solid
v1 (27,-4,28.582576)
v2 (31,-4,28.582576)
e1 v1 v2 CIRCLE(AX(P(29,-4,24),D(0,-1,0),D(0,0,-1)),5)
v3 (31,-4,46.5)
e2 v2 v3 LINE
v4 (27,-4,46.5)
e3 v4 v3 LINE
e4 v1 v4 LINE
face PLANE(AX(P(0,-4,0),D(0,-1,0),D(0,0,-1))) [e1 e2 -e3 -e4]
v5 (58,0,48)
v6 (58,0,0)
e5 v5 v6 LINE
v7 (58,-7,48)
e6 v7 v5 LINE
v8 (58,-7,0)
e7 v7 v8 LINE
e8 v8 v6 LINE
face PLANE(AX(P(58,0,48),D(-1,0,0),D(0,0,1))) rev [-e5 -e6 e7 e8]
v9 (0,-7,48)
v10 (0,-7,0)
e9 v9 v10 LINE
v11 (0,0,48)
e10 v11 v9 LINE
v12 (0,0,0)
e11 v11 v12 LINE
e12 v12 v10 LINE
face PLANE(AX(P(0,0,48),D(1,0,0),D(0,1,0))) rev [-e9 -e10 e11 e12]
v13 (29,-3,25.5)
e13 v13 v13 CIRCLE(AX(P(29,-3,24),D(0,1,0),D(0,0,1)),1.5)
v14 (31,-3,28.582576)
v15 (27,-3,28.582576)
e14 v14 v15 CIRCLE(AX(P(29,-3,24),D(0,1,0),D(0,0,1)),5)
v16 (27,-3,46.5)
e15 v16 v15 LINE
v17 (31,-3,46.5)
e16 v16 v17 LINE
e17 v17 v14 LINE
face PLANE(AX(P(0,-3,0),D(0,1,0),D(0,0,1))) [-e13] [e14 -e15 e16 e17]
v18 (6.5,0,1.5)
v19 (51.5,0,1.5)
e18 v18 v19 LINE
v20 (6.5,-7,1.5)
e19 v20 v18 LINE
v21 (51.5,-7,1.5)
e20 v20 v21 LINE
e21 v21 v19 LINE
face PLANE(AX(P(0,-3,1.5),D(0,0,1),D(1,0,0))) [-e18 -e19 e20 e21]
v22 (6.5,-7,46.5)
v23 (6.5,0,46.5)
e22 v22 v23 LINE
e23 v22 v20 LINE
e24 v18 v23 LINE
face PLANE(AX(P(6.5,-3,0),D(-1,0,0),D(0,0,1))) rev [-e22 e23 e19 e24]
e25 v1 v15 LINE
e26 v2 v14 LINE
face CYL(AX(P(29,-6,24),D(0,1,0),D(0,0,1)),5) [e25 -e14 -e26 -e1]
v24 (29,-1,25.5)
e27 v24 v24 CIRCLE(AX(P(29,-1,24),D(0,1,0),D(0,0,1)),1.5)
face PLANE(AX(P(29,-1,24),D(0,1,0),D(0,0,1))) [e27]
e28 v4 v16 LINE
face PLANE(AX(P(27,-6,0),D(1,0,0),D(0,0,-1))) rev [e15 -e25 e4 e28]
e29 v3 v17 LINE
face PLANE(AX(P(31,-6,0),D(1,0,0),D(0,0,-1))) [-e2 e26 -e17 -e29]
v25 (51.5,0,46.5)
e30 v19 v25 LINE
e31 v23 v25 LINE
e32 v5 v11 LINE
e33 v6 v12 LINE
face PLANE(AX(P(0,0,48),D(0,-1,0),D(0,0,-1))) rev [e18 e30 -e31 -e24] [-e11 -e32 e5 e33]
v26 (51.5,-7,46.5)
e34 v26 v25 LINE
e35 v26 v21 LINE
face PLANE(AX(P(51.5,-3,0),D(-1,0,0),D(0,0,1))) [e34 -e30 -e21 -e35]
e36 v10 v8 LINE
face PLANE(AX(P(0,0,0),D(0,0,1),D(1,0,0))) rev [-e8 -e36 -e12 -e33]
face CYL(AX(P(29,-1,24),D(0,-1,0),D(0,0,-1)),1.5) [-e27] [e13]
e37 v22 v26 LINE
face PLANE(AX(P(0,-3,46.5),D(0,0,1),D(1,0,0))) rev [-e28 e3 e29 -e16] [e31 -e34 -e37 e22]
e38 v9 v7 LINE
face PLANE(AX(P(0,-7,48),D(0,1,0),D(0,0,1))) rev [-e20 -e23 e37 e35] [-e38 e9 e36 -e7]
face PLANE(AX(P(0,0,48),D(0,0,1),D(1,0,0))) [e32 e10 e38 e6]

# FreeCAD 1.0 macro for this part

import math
import FreeCAD as App
import Part
import Sketcher
from FreeCAD import Vector


def add_polygon(sketch, points):
    """Adds a closed chain of lines whose ends are joined by coincident constraints."""
    first, n = sketch.GeometryCount, len(points)
    for a, b in zip(points, points[1:] + points[:1]):
        sketch.addGeometry(Part.LineSegment(App.Vector(*a, 0), App.Vector(*b, 0)), False)
    for i in range(n):
        sketch.addConstraint(Sketcher.Constraint("Coincident", first + i, 2, first + (i + 1) % n, 1))

doc = App.newDocument("Part")
body = doc.addObject("PartDesign::Body", "Body")

sketch1 = body.newObject("Sketcher::SketchObject", "Sketch")
sketch1.AttachmentSupport = (doc.getObject("XY_Plane"), [""])
sketch1.MapMode = "FlatFace"
add_polygon(sketch1, [(0, 0), (0, -7), (58, -7), (58, 0)])
sketch1.addConstraint([
    Sketcher.Constraint("Vertical", 0),
    Sketcher.Constraint("Horizontal", 1),
    Sketcher.Constraint("Vertical", 2),
    Sketcher.Constraint("Horizontal", 3),
    Sketcher.Constraint("Coincident", 3, 2, -1, 1),
    Sketcher.Constraint("DistanceX", 1, 1, 1, 2, 58.0),
    Sketcher.Constraint("DistanceY", 0, 2, 0, 1, 7.0),
])
pad1 = body.newObject("PartDesign::Pad", "Pad")
pad1.Profile = sketch1
pad1.Length = 48

sketch2 = body.newObject("Sketcher::SketchObject", "Sketch001")
sketch2.AttachmentSupport = (doc.getObject("XZ_Plane"), [""])
sketch2.MapMode = "FlatFace"
add_polygon(sketch2, [(6, 46), (52, 46), (52, 2), (6, 2)])
sketch2.addConstraint([
    Sketcher.Constraint("Horizontal", 0),
    Sketcher.Constraint("Vertical", 1),
    Sketcher.Constraint("Horizontal", 2),
    Sketcher.Constraint("Vertical", 3),
    Sketcher.Constraint("Equal", 2, 1),
    Sketcher.Constraint("DistanceX", 0, 1, 0, 2, 45.0),
    Sketcher.Constraint("DistanceX", -1, 1, 0, 2, 51.5),
    Sketcher.Constraint("DistanceY", -1, 1, 0, 2, 46.5),
])
pocket1 = body.newObject("PartDesign::Pocket", "Pocket")
pocket1.Profile = sketch2
pocket1.Length = 3
pocket1.Reversed = True

sketch3 = body.newObject("Sketcher::SketchObject", "Sketch002")
sketch3.AttachmentSupport = (doc.getObject("XZ_Plane"), [""])
sketch3.MapMode = "FlatFace"
sketch3.AttachmentOffset = App.Placement(Vector(0, 0, 7), App.Rotation())
add_polygon(sketch3, [(6, 2), (52, 2), (52, 46), (6, 46)])
sketch3.addConstraint([
    Sketcher.Constraint("Horizontal", 0),
    Sketcher.Constraint("Vertical", 1),
    Sketcher.Constraint("Horizontal", 2),
    Sketcher.Constraint("Vertical", 3),
    Sketcher.Constraint("Equal", 2, 1),
    Sketcher.Constraint("DistanceX", 0, 1, 0, 2, 45.0),
    Sketcher.Constraint("DistanceX", -1, 1, 0, 2, 51.5),
    Sketcher.Constraint("DistanceY", -1, 1, 0, 2, 1.5),
])
pocket2 = body.newObject("PartDesign::Pocket", "Pocket001")
pocket2.Profile = sketch3
pocket2.Length = 3

sketch4 = body.newObject("Sketcher::SketchObject", "Sketch003")
sketch4.AttachmentSupport = (doc.getObject("XZ_Plane"), [""])
sketch4.MapMode = "FlatFace"
sketch4.AttachmentOffset = App.Placement(Vector(0, 0, 3), App.Rotation())
sketch4.addGeometry([
    Part.LineSegment(Vector(51.5, 1.5, 0), Vector(6.5, 1.5, 0)),
    Part.LineSegment(Vector(6.5, 1.5, 0), Vector(6.5, 46.5, 0)),
    Part.LineSegment(Vector(6.5, 46.5, 0), Vector(27, 46.5, 0)),
    Part.LineSegment(Vector(27, 46.5, 0), Vector(27, 28.6, 0)),
    Part.ArcOfCircle(Part.Circle(Vector(29, 24, 0), Vector(0, 0, 1), 5), math.radians(114), math.radians(426)),
    Part.LineSegment(Vector(31, 28.6, 0), Vector(31, 46.5, 0)),
    Part.LineSegment(Vector(31, 46.5, 0), Vector(51.5, 46.5, 0)),
    Part.LineSegment(Vector(51.5, 46.5, 0), Vector(51.5, 1.5, 0)),
], False)
sketch4.addConstraint([
    Sketcher.Constraint("Coincident", 0, 2, 1, 1),
    Sketcher.Constraint("Coincident", 1, 2, 2, 1),
    Sketcher.Constraint("Coincident", 2, 2, 3, 1),
    Sketcher.Constraint("Coincident", 3, 2, 4, 1),
    Sketcher.Constraint("Coincident", 4, 2, 5, 1),
    Sketcher.Constraint("Coincident", 5, 2, 6, 1),
    Sketcher.Constraint("Coincident", 6, 2, 7, 1),
    Sketcher.Constraint("Coincident", 7, 2, 0, 1),
    Sketcher.Constraint("Horizontal", 0),
    Sketcher.Constraint("Vertical", 1),
    Sketcher.Constraint("Horizontal", 2),
    Sketcher.Constraint("Vertical", 3),
    Sketcher.Constraint("Vertical", 5),
    Sketcher.Constraint("Horizontal", 6),
    Sketcher.Constraint("Vertical", 7),
    Sketcher.Constraint("Horizontal", 3, 2, 4, 2),
    Sketcher.Constraint("Horizontal", 2, 2, 5, 2),
    Sketcher.Constraint("Equal", 2, 6),
    Sketcher.Constraint("Equal", 0, 1),
    Sketcher.Constraint("Radius", 4, 5.0),
    Sketcher.Constraint("DistanceX", 0, 2, 0, 1, 45.0),
    Sketcher.Constraint("DistanceX", 2, 1, 2, 2, 20.5),
    Sketcher.Constraint("DistanceX", -1, 1, 4, 3, 29.0),
    Sketcher.Constraint("DistanceY", -1, 1, 4, 3, 24.0),
    Sketcher.Constraint("DistanceY", -1, 1, 0, 2, 1.5),
])
pocket3 = body.newObject("PartDesign::Pocket", "Pocket002")
pocket3.Profile = sketch4
pocket3.Length = 3
pocket3.Reversed = True

sketch5 = body.newObject("Sketcher::SketchObject", "Sketch004")
sketch5.AttachmentSupport = (doc.getObject("XZ_Plane"), [""])
sketch5.MapMode = "FlatFace"
sketch5.AttachmentOffset = App.Placement(Vector(0, 0, 3), App.Rotation())
sketch5.addGeometry(Part.Circle(Vector(29, 24, 0), Vector(0, 0, 1), 1.5), False)
sketch5.addConstraint([
    Sketcher.Constraint("Diameter", 0, 3.0),
    Sketcher.Constraint("DistanceX", -1, 1, 0, 3, 29.0),
    Sketcher.Constraint("DistanceY", -1, 1, 0, 3, 24.0),
])
pad2 = body.newObject("PartDesign::Pad", "Pad001")
pad2.Profile = sketch5
pad2.Length = 2
pad2.Reversed = True

doc.recompute()
